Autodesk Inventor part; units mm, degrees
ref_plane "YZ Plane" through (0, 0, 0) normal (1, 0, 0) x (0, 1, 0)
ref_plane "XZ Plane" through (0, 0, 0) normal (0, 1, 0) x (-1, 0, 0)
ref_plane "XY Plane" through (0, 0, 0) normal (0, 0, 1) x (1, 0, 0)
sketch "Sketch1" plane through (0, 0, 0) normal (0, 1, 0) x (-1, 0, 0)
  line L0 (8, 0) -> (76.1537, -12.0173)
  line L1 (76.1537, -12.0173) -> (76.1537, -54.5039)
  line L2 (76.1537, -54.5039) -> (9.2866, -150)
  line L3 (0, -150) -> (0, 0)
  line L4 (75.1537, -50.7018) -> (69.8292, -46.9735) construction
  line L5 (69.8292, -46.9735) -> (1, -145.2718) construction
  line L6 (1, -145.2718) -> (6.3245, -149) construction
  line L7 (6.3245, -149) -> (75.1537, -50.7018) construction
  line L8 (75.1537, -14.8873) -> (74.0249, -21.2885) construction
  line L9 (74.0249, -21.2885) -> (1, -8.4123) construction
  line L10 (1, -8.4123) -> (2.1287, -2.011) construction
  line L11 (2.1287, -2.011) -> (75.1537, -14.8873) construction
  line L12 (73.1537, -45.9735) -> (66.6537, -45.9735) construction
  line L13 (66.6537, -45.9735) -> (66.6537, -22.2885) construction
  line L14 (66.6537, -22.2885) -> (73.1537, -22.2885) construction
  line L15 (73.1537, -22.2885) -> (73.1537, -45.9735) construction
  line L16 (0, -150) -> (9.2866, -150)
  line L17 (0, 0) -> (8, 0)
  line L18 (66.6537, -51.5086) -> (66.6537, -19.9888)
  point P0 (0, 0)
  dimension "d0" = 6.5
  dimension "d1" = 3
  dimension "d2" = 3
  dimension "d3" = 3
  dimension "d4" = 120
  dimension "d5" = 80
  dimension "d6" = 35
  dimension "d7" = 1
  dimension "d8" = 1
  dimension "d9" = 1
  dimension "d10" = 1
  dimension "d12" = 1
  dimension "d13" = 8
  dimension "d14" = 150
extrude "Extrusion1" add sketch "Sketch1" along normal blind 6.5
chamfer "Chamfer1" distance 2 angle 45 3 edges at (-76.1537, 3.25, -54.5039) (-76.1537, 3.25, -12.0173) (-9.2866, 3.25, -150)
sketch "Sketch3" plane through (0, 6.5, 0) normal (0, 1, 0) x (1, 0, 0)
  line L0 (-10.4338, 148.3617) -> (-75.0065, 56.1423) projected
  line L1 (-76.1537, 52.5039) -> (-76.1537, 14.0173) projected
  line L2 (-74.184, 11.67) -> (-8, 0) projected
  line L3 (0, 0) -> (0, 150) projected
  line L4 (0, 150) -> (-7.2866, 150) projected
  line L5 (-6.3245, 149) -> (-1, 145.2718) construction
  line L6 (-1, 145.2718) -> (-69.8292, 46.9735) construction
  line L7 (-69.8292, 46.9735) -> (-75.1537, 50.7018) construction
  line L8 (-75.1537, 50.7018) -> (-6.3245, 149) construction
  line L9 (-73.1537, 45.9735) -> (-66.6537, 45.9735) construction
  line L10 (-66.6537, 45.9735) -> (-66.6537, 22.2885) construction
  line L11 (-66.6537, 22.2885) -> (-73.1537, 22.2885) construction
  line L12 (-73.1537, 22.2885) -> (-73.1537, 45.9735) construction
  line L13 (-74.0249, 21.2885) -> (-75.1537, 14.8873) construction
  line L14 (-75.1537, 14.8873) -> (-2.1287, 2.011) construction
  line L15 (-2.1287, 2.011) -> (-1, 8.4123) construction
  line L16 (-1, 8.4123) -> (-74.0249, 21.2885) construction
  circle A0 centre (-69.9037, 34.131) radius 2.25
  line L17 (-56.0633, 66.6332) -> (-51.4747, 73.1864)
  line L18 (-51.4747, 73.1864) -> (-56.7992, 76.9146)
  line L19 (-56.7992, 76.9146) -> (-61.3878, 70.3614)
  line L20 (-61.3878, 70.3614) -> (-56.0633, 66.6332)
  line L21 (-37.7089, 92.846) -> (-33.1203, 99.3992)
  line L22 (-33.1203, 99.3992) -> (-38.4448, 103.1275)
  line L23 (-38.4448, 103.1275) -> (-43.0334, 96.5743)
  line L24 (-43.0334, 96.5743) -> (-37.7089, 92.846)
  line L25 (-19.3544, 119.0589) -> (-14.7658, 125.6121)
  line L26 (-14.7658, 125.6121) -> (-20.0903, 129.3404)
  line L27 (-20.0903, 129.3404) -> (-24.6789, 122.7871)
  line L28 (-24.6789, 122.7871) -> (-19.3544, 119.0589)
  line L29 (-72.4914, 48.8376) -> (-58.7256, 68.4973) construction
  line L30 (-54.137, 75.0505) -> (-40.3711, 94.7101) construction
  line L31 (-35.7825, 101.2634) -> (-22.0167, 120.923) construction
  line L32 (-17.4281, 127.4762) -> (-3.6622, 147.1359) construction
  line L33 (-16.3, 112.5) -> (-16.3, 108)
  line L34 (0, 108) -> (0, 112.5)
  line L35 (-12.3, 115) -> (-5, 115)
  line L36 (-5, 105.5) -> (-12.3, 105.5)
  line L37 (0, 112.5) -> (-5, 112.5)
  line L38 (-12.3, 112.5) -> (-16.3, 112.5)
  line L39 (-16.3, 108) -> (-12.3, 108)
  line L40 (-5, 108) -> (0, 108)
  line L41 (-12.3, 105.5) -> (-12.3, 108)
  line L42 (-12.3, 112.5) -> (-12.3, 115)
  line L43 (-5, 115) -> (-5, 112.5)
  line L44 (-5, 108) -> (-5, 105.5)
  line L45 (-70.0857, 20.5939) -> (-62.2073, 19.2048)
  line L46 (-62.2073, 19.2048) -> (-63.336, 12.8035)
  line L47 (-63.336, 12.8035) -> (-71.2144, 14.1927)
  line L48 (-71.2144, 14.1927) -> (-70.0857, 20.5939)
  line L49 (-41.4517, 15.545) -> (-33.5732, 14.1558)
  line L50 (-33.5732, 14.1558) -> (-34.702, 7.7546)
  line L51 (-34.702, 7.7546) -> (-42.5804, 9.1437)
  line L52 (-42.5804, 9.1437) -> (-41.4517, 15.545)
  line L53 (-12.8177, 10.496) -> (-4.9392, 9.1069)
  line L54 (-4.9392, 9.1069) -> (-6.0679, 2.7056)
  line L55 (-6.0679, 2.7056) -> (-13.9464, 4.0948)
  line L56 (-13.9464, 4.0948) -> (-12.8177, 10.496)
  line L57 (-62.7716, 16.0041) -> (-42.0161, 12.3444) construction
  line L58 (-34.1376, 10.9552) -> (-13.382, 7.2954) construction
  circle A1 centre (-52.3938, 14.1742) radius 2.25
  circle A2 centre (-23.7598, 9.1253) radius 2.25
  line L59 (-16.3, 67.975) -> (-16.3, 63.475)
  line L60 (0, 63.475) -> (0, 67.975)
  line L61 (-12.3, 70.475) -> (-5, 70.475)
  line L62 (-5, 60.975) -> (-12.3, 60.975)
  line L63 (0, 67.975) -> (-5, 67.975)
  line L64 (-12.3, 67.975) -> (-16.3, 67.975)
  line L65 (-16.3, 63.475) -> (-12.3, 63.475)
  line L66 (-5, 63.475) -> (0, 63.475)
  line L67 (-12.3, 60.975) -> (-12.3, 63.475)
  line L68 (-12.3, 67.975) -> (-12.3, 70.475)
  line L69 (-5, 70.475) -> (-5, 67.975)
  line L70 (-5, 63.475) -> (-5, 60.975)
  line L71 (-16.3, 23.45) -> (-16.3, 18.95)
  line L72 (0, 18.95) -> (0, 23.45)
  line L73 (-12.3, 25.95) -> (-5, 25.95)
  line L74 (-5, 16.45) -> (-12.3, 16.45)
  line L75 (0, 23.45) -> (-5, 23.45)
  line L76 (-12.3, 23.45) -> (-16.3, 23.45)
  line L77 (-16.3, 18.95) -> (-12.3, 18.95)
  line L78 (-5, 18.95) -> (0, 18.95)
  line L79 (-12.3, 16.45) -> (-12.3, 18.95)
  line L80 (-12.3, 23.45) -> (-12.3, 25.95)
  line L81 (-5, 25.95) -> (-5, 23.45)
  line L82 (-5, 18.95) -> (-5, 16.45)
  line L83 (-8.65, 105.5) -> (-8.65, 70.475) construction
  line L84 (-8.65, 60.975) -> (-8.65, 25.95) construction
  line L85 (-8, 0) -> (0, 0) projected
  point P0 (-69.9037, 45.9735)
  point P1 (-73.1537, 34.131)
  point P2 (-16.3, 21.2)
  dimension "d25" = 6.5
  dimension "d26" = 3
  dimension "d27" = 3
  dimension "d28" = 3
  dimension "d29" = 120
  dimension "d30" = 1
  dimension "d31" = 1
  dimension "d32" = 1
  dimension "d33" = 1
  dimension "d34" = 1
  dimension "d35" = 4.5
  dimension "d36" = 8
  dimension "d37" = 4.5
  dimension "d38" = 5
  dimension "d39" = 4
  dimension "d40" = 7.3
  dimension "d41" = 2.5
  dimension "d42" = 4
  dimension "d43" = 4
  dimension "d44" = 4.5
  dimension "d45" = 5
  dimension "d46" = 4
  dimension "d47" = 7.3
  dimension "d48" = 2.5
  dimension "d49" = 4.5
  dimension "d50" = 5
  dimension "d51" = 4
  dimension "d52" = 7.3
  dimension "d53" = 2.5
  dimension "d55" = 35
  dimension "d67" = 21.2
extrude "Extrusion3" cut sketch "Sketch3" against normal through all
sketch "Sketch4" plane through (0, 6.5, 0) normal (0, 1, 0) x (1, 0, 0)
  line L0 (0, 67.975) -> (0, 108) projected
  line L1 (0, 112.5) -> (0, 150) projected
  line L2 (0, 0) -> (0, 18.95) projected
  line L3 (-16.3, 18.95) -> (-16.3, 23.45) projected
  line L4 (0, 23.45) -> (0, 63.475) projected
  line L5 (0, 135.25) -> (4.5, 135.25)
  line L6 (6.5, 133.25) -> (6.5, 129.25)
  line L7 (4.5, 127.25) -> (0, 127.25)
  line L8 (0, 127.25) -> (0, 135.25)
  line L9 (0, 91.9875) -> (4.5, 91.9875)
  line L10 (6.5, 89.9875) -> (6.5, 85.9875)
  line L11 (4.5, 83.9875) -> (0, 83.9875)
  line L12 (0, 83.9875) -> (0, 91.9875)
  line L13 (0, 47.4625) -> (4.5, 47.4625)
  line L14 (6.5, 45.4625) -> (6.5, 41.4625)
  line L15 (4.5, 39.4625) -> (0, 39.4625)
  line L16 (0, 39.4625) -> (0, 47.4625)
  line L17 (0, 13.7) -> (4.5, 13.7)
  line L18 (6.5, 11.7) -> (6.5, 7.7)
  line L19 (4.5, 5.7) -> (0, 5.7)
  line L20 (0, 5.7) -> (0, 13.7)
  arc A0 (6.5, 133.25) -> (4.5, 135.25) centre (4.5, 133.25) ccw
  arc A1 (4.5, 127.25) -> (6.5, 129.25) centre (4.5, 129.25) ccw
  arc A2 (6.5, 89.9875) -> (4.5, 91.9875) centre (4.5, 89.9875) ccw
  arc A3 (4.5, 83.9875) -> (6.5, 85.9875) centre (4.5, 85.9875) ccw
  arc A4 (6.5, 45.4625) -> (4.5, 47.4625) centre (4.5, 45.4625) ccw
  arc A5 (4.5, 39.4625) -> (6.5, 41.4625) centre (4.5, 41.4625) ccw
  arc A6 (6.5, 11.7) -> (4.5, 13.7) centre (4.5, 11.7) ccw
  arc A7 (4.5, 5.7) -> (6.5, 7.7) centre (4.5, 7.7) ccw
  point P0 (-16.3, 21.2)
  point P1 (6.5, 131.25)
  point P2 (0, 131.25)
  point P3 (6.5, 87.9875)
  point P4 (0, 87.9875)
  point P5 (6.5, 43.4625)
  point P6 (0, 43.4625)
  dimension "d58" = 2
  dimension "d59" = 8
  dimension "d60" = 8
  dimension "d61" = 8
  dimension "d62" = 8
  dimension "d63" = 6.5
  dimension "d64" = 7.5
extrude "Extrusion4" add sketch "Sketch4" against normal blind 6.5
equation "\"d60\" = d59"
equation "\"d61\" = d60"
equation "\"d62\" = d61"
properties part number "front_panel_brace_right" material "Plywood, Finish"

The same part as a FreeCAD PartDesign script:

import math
import FreeCAD as App
import Part
import Sketcher
from FreeCAD import Vector
Q = App.Units.Quantity


def edges_at(feature, points):
    """Names of the edges that pass closest to the given points."""
    edges = feature.Shape.Edges
    near = lambda p: min(range(len(edges)), key=lambda i: edges[i].distToShape(Part.Vertex(*p))[0])
    return sorted({f"Edge{near(p) + 1}" for p in points})

doc = App.newDocument("Part")
body = doc.addObject("PartDesign::Body", "Body")

# Sketch on XZ plane
sketch1 = doc.addObject("Sketcher::SketchObject", "Sketch")
body.addObject(sketch1)
sketch1.AttachmentSupport = (doc.XZ_Plane, [""])
sketch1.MapMode = "FlatFace"
sketch1.addGeometry([
    Part.LineSegment(Vector(-76.1537, -12.0173, 0), Vector(-8, 0, 0)),  # 0
    Part.LineSegment(Vector(-8, 0, 0), Vector(0, 0, 0)),  # 1
    Part.LineSegment(Vector(0, 0, 0), Vector(0, -150, 0)),  # 2
    Part.LineSegment(Vector(0, -150, 0), Vector(-9.2866, -150, 0)),  # 3
    Part.LineSegment(Vector(-9.2866, -150, 0), Vector(-76.1537, -54.5039, 0)),  # 4
    Part.LineSegment(Vector(-76.1537, -54.5039, 0), Vector(-76.1537, -12.0173, 0)),  # 5
], False)
sketch1.addConstraint([
    Sketcher.Constraint("Coincident", 0, 2, 1, 1),
    Sketcher.Constraint("Coincident", 1, 2, 2, 1),
    Sketcher.Constraint("Coincident", 2, 2, 3, 1),
    Sketcher.Constraint("Coincident", 3, 2, 4, 1),
    Sketcher.Constraint("Coincident", 4, 2, 5, 1),
    Sketcher.Constraint("Coincident", 5, 2, 0, 1),
    Sketcher.Constraint("Horizontal", 1),
    Sketcher.Constraint("Vertical", 2),
    Sketcher.Constraint("Horizontal", 3),
    Sketcher.Constraint("Vertical", 5),
    Sketcher.Constraint("Coincident", 1, 2, -1, 1),
    Sketcher.Constraint("DistanceX", 1, 1, 1, 2, 8.0),
    Sketcher.Constraint("DistanceY", 2, 2, 2, 1, 150.0),
    Sketcher.Constraint("Angle", 0, Q("10 deg")),
    Sketcher.Constraint("Angle", 4, Q("125 deg")),
    Sketcher.Constraint("Distance", 0, 69.205),
    Sketcher.Constraint("DistanceX", 3, 2, 3, 1, 9.2866),
])
pad1 = doc.addObject("PartDesign::Pad", "Pad")
body.addObject(pad1)
pad1.Profile = sketch1
pad1.Length = 6.5
pad1.Reversed = True
doc.recompute()

chamfer = doc.addObject("PartDesign::Chamfer", "Chamfer")
body.addObject(chamfer)
chamfer.Base = (pad1, edges_at(pad1, [(-76.154, 3.25, -54.504), (-76.154, 3.25, -12.017), (-9.287, 3.25, -150)]))
chamfer.Size = 2

# Sketch on XZ plane
sketch2 = doc.addObject("Sketcher::SketchObject", "Sketch001")
body.addObject(sketch2)
sketch2.AttachmentSupport = (doc.XZ_Plane, [""])
sketch2.MapMode = "FlatFace"
sketch2.AttachmentOffset = App.Placement(Vector(0, 0, -6.5), App.Rotation())
sketch2.addGeometry([
    Part.LineSegment(Vector(-5, -18.95, 0), Vector(0, -18.95, 0)),  # 0
    Part.LineSegment(Vector(0, -18.95, 0), Vector(0, -23.45, 0)),  # 1
    Part.LineSegment(Vector(0, -23.45, 0), Vector(-5, -23.45, 0)),  # 2
    Part.LineSegment(Vector(-5, -23.45, 0), Vector(-5, -25.95, 0)),  # 3
    Part.LineSegment(Vector(-5, -25.95, 0), Vector(-12.3, -25.95, 0)),  # 4
    Part.LineSegment(Vector(-12.3, -25.95, 0), Vector(-12.3, -23.45, 0)),  # 5
    Part.LineSegment(Vector(-12.3, -23.45, 0), Vector(-16.3, -23.45, 0)),  # 6
    Part.LineSegment(Vector(-16.3, -23.45, 0), Vector(-16.3, -18.95, 0)),  # 7
    Part.LineSegment(Vector(-16.3, -18.95, 0), Vector(-12.3, -18.95, 0)),  # 8
    Part.LineSegment(Vector(-12.3, -18.95, 0), Vector(-12.3, -16.45, 0)),  # 9
    Part.LineSegment(Vector(-12.3, -16.45, 0), Vector(-5, -16.45, 0)),  # 10
    Part.LineSegment(Vector(-5, -16.45, 0), Vector(-5, -18.95, 0)),  # 11
    Part.LineSegment(Vector(-5, -108, 0), Vector(0, -108, 0)),  # 12
    Part.LineSegment(Vector(0, -108, 0), Vector(0, -112.5, 0)),  # 13
    Part.LineSegment(Vector(0, -112.5, 0), Vector(-5, -112.5, 0)),  # 14
    Part.LineSegment(Vector(-5, -112.5, 0), Vector(-5, -115, 0)),  # 15
    Part.LineSegment(Vector(-5, -115, 0), Vector(-12.3, -115, 0)),  # 16
    Part.LineSegment(Vector(-12.3, -115, 0), Vector(-12.3, -112.5, 0)),  # 17
    Part.LineSegment(Vector(-12.3, -112.5, 0), Vector(-16.3, -112.5, 0)),  # 18
    Part.LineSegment(Vector(-16.3, -112.5, 0), Vector(-16.3, -108, 0)),  # 19
    Part.LineSegment(Vector(-16.3, -108, 0), Vector(-12.3, -108, 0)),  # 20
    Part.LineSegment(Vector(-12.3, -108, 0), Vector(-12.3, -105.5, 0)),  # 21
    Part.LineSegment(Vector(-12.3, -105.5, 0), Vector(-5, -105.5, 0)),  # 22
    Part.LineSegment(Vector(-5, -105.5, 0), Vector(-5, -108, 0)),  # 23
    Part.LineSegment(Vector(-5, -63.475, 0), Vector(0, -63.475, 0)),  # 24
    Part.LineSegment(Vector(0, -63.475, 0), Vector(0, -67.975, 0)),  # 25
    Part.LineSegment(Vector(0, -67.975, 0), Vector(-5, -67.975, 0)),  # 26
    Part.LineSegment(Vector(-5, -67.975, 0), Vector(-5, -70.475, 0)),  # 27
    Part.LineSegment(Vector(-5, -70.475, 0), Vector(-12.3, -70.475, 0)),  # 28
    Part.LineSegment(Vector(-12.3, -70.475, 0), Vector(-12.3, -67.975, 0)),  # 29
    Part.LineSegment(Vector(-12.3, -67.975, 0), Vector(-16.3, -67.975, 0)),  # 30
    Part.LineSegment(Vector(-16.3, -67.975, 0), Vector(-16.3, -63.475, 0)),  # 31
    Part.LineSegment(Vector(-16.3, -63.475, 0), Vector(-12.3, -63.475, 0)),  # 32
    Part.LineSegment(Vector(-12.3, -63.475, 0), Vector(-12.3, -60.975, 0)),  # 33
    Part.LineSegment(Vector(-12.3, -60.975, 0), Vector(-5, -60.975, 0)),  # 34
    Part.LineSegment(Vector(-5, -60.975, 0), Vector(-5, -63.475, 0)),  # 35
    Part.Circle(Vector(-69.9037, -34.131, 0), Vector(0, 0, 1), 2.25),  # 36
    Part.LineSegment(Vector(-61.3878, -70.3614, 0), Vector(-56.0633, -66.6332, 0)),  # 37
    Part.LineSegment(Vector(-56.0633, -66.6332, 0), Vector(-51.4747, -73.1864, 0)),  # 38
    Part.LineSegment(Vector(-51.4747, -73.1864, 0), Vector(-56.7992, -76.9146, 0)),  # 39
    Part.LineSegment(Vector(-56.7992, -76.9146, 0), Vector(-61.3878, -70.3614, 0)),  # 40
    Part.LineSegment(Vector(-43.0334, -96.5743, 0), Vector(-37.7089, -92.846, 0)),  # 41
    Part.LineSegment(Vector(-37.7089, -92.846, 0), Vector(-33.1203, -99.3992, 0)),  # 42
    Part.LineSegment(Vector(-33.1203, -99.3992, 0), Vector(-38.4448, -103.1275, 0)),  # 43
    Part.LineSegment(Vector(-38.4448, -103.1275, 0), Vector(-43.0334, -96.5743, 0)),  # 44
    Part.LineSegment(Vector(-24.6789, -122.7871, 0), Vector(-19.3544, -119.0589, 0)),  # 45
    Part.LineSegment(Vector(-19.3544, -119.0589, 0), Vector(-14.7658, -125.6121, 0)),  # 46
    Part.LineSegment(Vector(-14.7658, -125.6121, 0), Vector(-20.0903, -129.3404, 0)),  # 47
    Part.LineSegment(Vector(-20.0903, -129.3404, 0), Vector(-24.6789, -122.7871, 0)),  # 48
    Part.LineSegment(Vector(-62.2073, -19.2048, 0), Vector(-70.0857, -20.5939, 0)),  # 49
    Part.LineSegment(Vector(-70.0857, -20.5939, 0), Vector(-71.2144, -14.1927, 0)),  # 50
    Part.LineSegment(Vector(-71.2144, -14.1927, 0), Vector(-63.336, -12.8035, 0)),  # 51
    Part.LineSegment(Vector(-63.336, -12.8035, 0), Vector(-62.2073, -19.2048, 0)),  # 52
    Part.LineSegment(Vector(-33.5732, -14.1558, 0), Vector(-41.4517, -15.545, 0)),  # 53
    Part.LineSegment(Vector(-41.4517, -15.545, 0), Vector(-42.5804, -9.1437, 0)),  # 54
    Part.LineSegment(Vector(-42.5804, -9.1437, 0), Vector(-34.702, -7.7546, 0)),  # 55
    Part.LineSegment(Vector(-34.702, -7.7546, 0), Vector(-33.5732, -14.1558, 0)),  # 56
    Part.LineSegment(Vector(-4.9392, -9.1069, 0), Vector(-12.8177, -10.496, 0)),  # 57
    Part.LineSegment(Vector(-12.8177, -10.496, 0), Vector(-13.9464, -4.0948, 0)),  # 58
    Part.LineSegment(Vector(-13.9464, -4.0948, 0), Vector(-6.0679, -2.7056, 0)),  # 59
    Part.LineSegment(Vector(-6.0679, -2.7056, 0), Vector(-4.9392, -9.1069, 0)),  # 60
    Part.Circle(Vector(-52.3938, -14.1742, 0), Vector(0, 0, 1), 2.25),  # 61
    Part.Circle(Vector(-23.7598, -9.1253, 0), Vector(0, 0, 1), 2.25),  # 62
], False)
sketch2.addConstraint([
    Sketcher.Constraint("Coincident", 0, 2, 1, 1),
    Sketcher.Constraint("Coincident", 1, 2, 2, 1),
    Sketcher.Constraint("Coincident", 2, 2, 3, 1),
    Sketcher.Constraint("Coincident", 3, 2, 4, 1),
    Sketcher.Constraint("Coincident", 4, 2, 5, 1),
    Sketcher.Constraint("Coincident", 5, 2, 6, 1),
    Sketcher.Constraint("Coincident", 6, 2, 7, 1),
    Sketcher.Constraint("Coincident", 7, 2, 8, 1),
    Sketcher.Constraint("Coincident", 8, 2, 9, 1),
    Sketcher.Constraint("Coincident", 9, 2, 10, 1),
    Sketcher.Constraint("Coincident", 10, 2, 11, 1),
    Sketcher.Constraint("Coincident", 11, 2, 0, 1),
    Sketcher.Constraint("Coincident", 12, 2, 13, 1),
    Sketcher.Constraint("Coincident", 13, 2, 14, 1),
    Sketcher.Constraint("Coincident", 14, 2, 15, 1),
    Sketcher.Constraint("Coincident", 15, 2, 16, 1),
    Sketcher.Constraint("Coincident", 16, 2, 17, 1),
    Sketcher.Constraint("Coincident", 17, 2, 18, 1),
    Sketcher.Constraint("Coincident", 18, 2, 19, 1),
    Sketcher.Constraint("Coincident", 19, 2, 20, 1),
    Sketcher.Constraint("Coincident", 20, 2, 21, 1),
    Sketcher.Constraint("Coincident", 21, 2, 22, 1),
    Sketcher.Constraint("Coincident", 22, 2, 23, 1),
    Sketcher.Constraint("Coincident", 23, 2, 12, 1),
    Sketcher.Constraint("Coincident", 24, 2, 25, 1),
    Sketcher.Constraint("Coincident", 25, 2, 26, 1),
    Sketcher.Constraint("Coincident", 26, 2, 27, 1),
    Sketcher.Constraint("Coincident", 27, 2, 28, 1),
    Sketcher.Constraint("Coincident", 28, 2, 29, 1),
    Sketcher.Constraint("Coincident", 29, 2, 30, 1),
    Sketcher.Constraint("Coincident", 30, 2, 31, 1),
    Sketcher.Constraint("Coincident", 31, 2, 32, 1),
    Sketcher.Constraint("Coincident", 32, 2, 33, 1),
    Sketcher.Constraint("Coincident", 33, 2, 34, 1),
    Sketcher.Constraint("Coincident", 34, 2, 35, 1),
    Sketcher.Constraint("Coincident", 35, 2, 24, 1),
    Sketcher.Constraint("Coincident", 37, 2, 38, 1),
    Sketcher.Constraint("Coincident", 38, 2, 39, 1),
    Sketcher.Constraint("Coincident", 39, 2, 40, 1),
    Sketcher.Constraint("Coincident", 40, 2, 37, 1),
    Sketcher.Constraint("Coincident", 41, 2, 42, 1),
    Sketcher.Constraint("Coincident", 42, 2, 43, 1),
    Sketcher.Constraint("Coincident", 43, 2, 44, 1),
    Sketcher.Constraint("Coincident", 44, 2, 41, 1),
    Sketcher.Constraint("Coincident", 45, 2, 46, 1),
    Sketcher.Constraint("Coincident", 46, 2, 47, 1),
    Sketcher.Constraint("Coincident", 47, 2, 48, 1),
    Sketcher.Constraint("Coincident", 48, 2, 45, 1),
    Sketcher.Constraint("Coincident", 49, 2, 50, 1),
    Sketcher.Constraint("Coincident", 50, 2, 51, 1),
    Sketcher.Constraint("Coincident", 51, 2, 52, 1),
    Sketcher.Constraint("Coincident", 52, 2, 49, 1),
    Sketcher.Constraint("Coincident", 53, 2, 54, 1),
    Sketcher.Constraint("Coincident", 54, 2, 55, 1),
    Sketcher.Constraint("Coincident", 55, 2, 56, 1),
    Sketcher.Constraint("Coincident", 56, 2, 53, 1),
    Sketcher.Constraint("Coincident", 57, 2, 58, 1),
    Sketcher.Constraint("Coincident", 58, 2, 59, 1),
    Sketcher.Constraint("Coincident", 59, 2, 60, 1),
    Sketcher.Constraint("Coincident", 60, 2, 57, 1),
    Sketcher.Constraint("Horizontal", 0),
    Sketcher.Constraint("Vertical", 1),
    Sketcher.Constraint("Horizontal", 2),
    Sketcher.Constraint("Vertical", 3),
    Sketcher.Constraint("Horizontal", 4),
    Sketcher.Constraint("Vertical", 5),
    Sketcher.Constraint("Horizontal", 6),
    Sketcher.Constraint("Vertical", 7),
    Sketcher.Constraint("Horizontal", 8),
    Sketcher.Constraint("Vertical", 9),
    Sketcher.Constraint("Horizontal", 10),
    Sketcher.Constraint("Vertical", 11),
    Sketcher.Constraint("Horizontal", 12),
    Sketcher.Constraint("Vertical", 13),
    Sketcher.Constraint("Horizontal", 14),
    Sketcher.Constraint("Vertical", 15),
    Sketcher.Constraint("Horizontal", 16),
    Sketcher.Constraint("Vertical", 17),
    Sketcher.Constraint("Horizontal", 18),
    Sketcher.Constraint("Vertical", 19),
    Sketcher.Constraint("Horizontal", 20),
    Sketcher.Constraint("Vertical", 21),
    Sketcher.Constraint("Horizontal", 22),
    Sketcher.Constraint("Vertical", 23),
    Sketcher.Constraint("Horizontal", 24),
    Sketcher.Constraint("Vertical", 25),
    Sketcher.Constraint("Horizontal", 26),
    Sketcher.Constraint("Vertical", 27),
    Sketcher.Constraint("Horizontal", 28),
    Sketcher.Constraint("Vertical", 29),
    Sketcher.Constraint("Horizontal", 30),
    Sketcher.Constraint("Vertical", 31),
    Sketcher.Constraint("Horizontal", 32),
    Sketcher.Constraint("Vertical", 33),
    Sketcher.Constraint("Horizontal", 34),
    Sketcher.Constraint("Vertical", 35),
    Sketcher.Constraint("Equal", 36, 61),
    Sketcher.Constraint("Equal", 61, 62),
    Sketcher.Constraint("PointOnObject", 0, 2, -2),
    Sketcher.Constraint("PointOnObject", 12, 2, -2),
    Sketcher.Constraint("PointOnObject", 24, 2, -2),
    Sketcher.Constraint("Perpendicular", 37, 38),
    Sketcher.Constraint("Perpendicular", 38, 39),
    Sketcher.Constraint("Perpendicular", 39, 40),
    Sketcher.Constraint("Perpendicular", 40, 41),
    Sketcher.Constraint("Perpendicular", 41, 42),
    Sketcher.Constraint("Perpendicular", 42, 43),
    Sketcher.Constraint("Perpendicular", 43, 44),
    Sketcher.Constraint("Perpendicular", 44, 45),
    Sketcher.Constraint("Perpendicular", 45, 46),
    Sketcher.Constraint("Perpendicular", 46, 47),
    Sketcher.Constraint("Perpendicular", 47, 48),
    Sketcher.Constraint("Perpendicular", 49, 50),
    Sketcher.Constraint("Perpendicular", 50, 51),
    Sketcher.Constraint("Perpendicular", 51, 52),
    Sketcher.Constraint("Perpendicular", 52, 53),
    Sketcher.Constraint("Perpendicular", 53, 54),
    Sketcher.Constraint("Perpendicular", 54, 55),
    Sketcher.Constraint("Perpendicular", 55, 56),
    Sketcher.Constraint("Perpendicular", 56, 57),
    Sketcher.Constraint("Perpendicular", 57, 58),
    Sketcher.Constraint("Perpendicular", 58, 59),
    Sketcher.Constraint("Perpendicular", 59, 60),
    Sketcher.Constraint("Horizontal", 2, 2, 5, 2),
    Sketcher.Constraint("Horizontal", 0, 2, 7, 2),
    Sketcher.Constraint("Horizontal", 14, 2, 17, 2),
    Sketcher.Constraint("Horizontal", 12, 2, 19, 2),
    Sketcher.Constraint("Horizontal", 26, 2, 29, 2),
    Sketcher.Constraint("Horizontal", 24, 2, 31, 2),
    Sketcher.Constraint("Vertical", 5, 2, 8, 2),
    Sketcher.Constraint("Vertical", 3, 2, 10, 2),
    Sketcher.Constraint("Vertical", 11, 2, 14, 2),
    Sketcher.Constraint("Vertical", 9, 2, 16, 2),
    Sketcher.Constraint("Vertical", 7, 2, 18, 2),
    Sketcher.Constraint("Vertical", 17, 2, 20, 2),
    Sketcher.Constraint("Vertical", 15, 2, 22, 2),
    Sketcher.Constraint("Vertical", 23, 2, 26, 2),
    Sketcher.Constraint("Vertical", 21, 2, 28, 2),
    Sketcher.Constraint("Vertical", 19, 2, 30, 2),
    Sketcher.Constraint("Vertical", 29, 2, 32, 2),
    Sketcher.Constraint("Vertical", 27, 2, 34, 2),
    Sketcher.Constraint("Equal", 5, 9),
    Sketcher.Constraint("Equal", 7, 13),
    Sketcher.Constraint("Equal", 11, 15),
    Sketcher.Constraint("Equal", 17, 21),
    Sketcher.Constraint("Equal", 19, 25),
    Sketcher.Constraint("Equal", 23, 27),
    Sketcher.Constraint("Equal", 29, 33),
    Sketcher.Constraint("Equal", 39, 41),
    Sketcher.Constraint("Equal", 40, 42),
    Sketcher.Constraint("Equal", 43, 45),
    Sketcher.Constraint("Equal", 44, 46),
    Sketcher.Constraint("Equal", 48, 49),
    Sketcher.Constraint("Equal", 47, 50),
    Sketcher.Constraint("Equal", 51, 53),
    Sketcher.Constraint("Equal", 52, 54),
    Sketcher.Constraint("Equal", 55, 57),
    Sketcher.Constraint("Equal", 56, 58),
    Sketcher.Constraint("Diameter", 36, 4.5),
    Sketcher.Constraint("DistanceX", 0, 1, 0, 2, 5.0),
    Sketcher.Constraint("DistanceX", 6, 2, 6, 1, 4.0),
    Sketcher.Constraint("Angle", 37, Q("34.9996 deg")),
    Sketcher.Constraint("Distance", 38, 8.0),
    Sketcher.Constraint("DistanceX", 4, 2, 4, 1, 7.3),
    Sketcher.Constraint("DistanceY", 1, 2, 1, 1, 4.5),
    Sketcher.Constraint("DistanceY", 3, 2, 3, 1, 2.5),
    Sketcher.Constraint("Distance", 37, 6.5),
    Sketcher.Constraint("Angle", 49, Q("-170.0005 deg")),
    Sketcher.Constraint("DistanceY", 12, 2, -1, 1, 108.0),
    Sketcher.Constraint("DistanceY", 0, 2, -1, 1, 18.95),
    Sketcher.Constraint("DistanceY", 36, 3, -1, 1, 34.131),
    Sketcher.Constraint("DistanceY", 24, 2, -1, 1, 63.475),
    Sketcher.Constraint("DistanceX", 41, 2, -1, 1, 37.709),
    Sketcher.Constraint("DistanceY", 41, 2, -1, 1, 92.846),
    Sketcher.Constraint("DistanceY", 45, 2, -1, 1, 119.059),
    Sketcher.Constraint("DistanceX", 48, 2, -1, 1, 24.679),
    Sketcher.Constraint("DistanceY", 49, 2, -1, 1, 20.594),
    Sketcher.Constraint("DistanceX", 51, 2, -1, 1, 63.336),
    Sketcher.Constraint("DistanceY", 53, 2, -1, 1, 15.545),
    Sketcher.Constraint("DistanceX", 55, 2, -1, 1, 34.702),
    Sketcher.Constraint("DistanceY", 57, 2, -1, 1, 10.496),
    Sketcher.Constraint("DistanceX", 59, 2, -1, 1, 6.068),
    Sketcher.Constraint("DistanceX", 36, 3, -1, 1, 69.9037),
    Sketcher.Constraint("DistanceX", 61, 3, -1, 1, 52.3938),
    Sketcher.Constraint("DistanceY", 61, 3, -1, 1, 14.1742),
    Sketcher.Constraint("DistanceX", 62, 3, -1, 1, 23.7598),
    Sketcher.Constraint("DistanceY", 62, 3, -1, 1, 9.1253),
    Sketcher.Constraint("DistanceX", 37, 2, -1, 1, 56.0633),
    Sketcher.Constraint("DistanceY", 37, 2, -1, 1, 66.6332),
])
pocket1 = doc.addObject("PartDesign::Pocket", "Pocket")
body.addObject(pocket1)
pocket1.Profile = sketch2
pocket1.Type = "ThroughAll"
pocket1.Reversed = True

# Sketch on XZ plane
sketch3 = doc.addObject("Sketcher::SketchObject", "Sketch002")
body.addObject(sketch3)
sketch3.AttachmentSupport = (doc.XZ_Plane, [""])
sketch3.MapMode = "FlatFace"
sketch3.AttachmentOffset = App.Placement(Vector(0, 0, -6.5), App.Rotation())
sketch3.addGeometry([
    Part.LineSegment(Vector(0, -91.9875, 0), Vector(0, -83.9875, 0)),  # 0
    Part.LineSegment(Vector(0, -83.9875, 0), Vector(4.5, -83.9875, 0)),  # 1
    Part.ArcOfCircle(Part.Circle(Vector(4.5, -85.9875, 0), Vector(0, 0, 1), 2), math.radians(0), math.radians(90)),  # 2
    Part.LineSegment(Vector(6.5, -85.9875, 0), Vector(6.5, -89.9875, 0)),  # 3
    Part.ArcOfCircle(Part.Circle(Vector(4.5, -89.9875, 0), Vector(0, 0, 1), 2), math.radians(-90), math.radians(0)),  # 4
    Part.LineSegment(Vector(4.5, -91.9875, 0), Vector(0, -91.9875, 0)),  # 5
    Part.LineSegment(Vector(0, -135.25, 0), Vector(0, -127.25, 0)),  # 6
    Part.LineSegment(Vector(0, -127.25, 0), Vector(4.5, -127.25, 0)),  # 7
    Part.ArcOfCircle(Part.Circle(Vector(4.5, -129.25, 0), Vector(0, 0, 1), 2), math.radians(0), math.radians(90)),  # 8
    Part.LineSegment(Vector(6.5, -129.25, 0), Vector(6.5, -133.25, 0)),  # 9
    Part.ArcOfCircle(Part.Circle(Vector(4.5, -133.25, 0), Vector(0, 0, 1), 2), math.radians(-90), math.radians(0)),  # 10
    Part.LineSegment(Vector(4.5, -135.25, 0), Vector(0, -135.25, 0)),  # 11
    Part.LineSegment(Vector(0, -13.7, 0), Vector(0, -5.7, 0)),  # 12
    Part.LineSegment(Vector(0, -5.7, 0), Vector(4.5, -5.7, 0)),  # 13
    Part.ArcOfCircle(Part.Circle(Vector(4.5, -7.7, 0), Vector(0, 0, 1), 2), math.radians(0), math.radians(90)),  # 14
    Part.LineSegment(Vector(6.5, -7.7, 0), Vector(6.5, -11.7, 0)),  # 15
    Part.ArcOfCircle(Part.Circle(Vector(4.5, -11.7, 0), Vector(0, 0, 1), 2), math.radians(-90), math.radians(0)),  # 16
    Part.LineSegment(Vector(4.5, -13.7, 0), Vector(0, -13.7, 0)),  # 17
    Part.LineSegment(Vector(0, -47.4625, 0), Vector(0, -39.4625, 0)),  # 18
    Part.LineSegment(Vector(0, -39.4625, 0), Vector(4.5, -39.4625, 0)),  # 19
    Part.ArcOfCircle(Part.Circle(Vector(4.5, -41.4625, 0), Vector(0, 0, 1), 2), math.radians(0), math.radians(90)),  # 20
    Part.LineSegment(Vector(6.5, -41.4625, 0), Vector(6.5, -45.4625, 0)),  # 21
    Part.ArcOfCircle(Part.Circle(Vector(4.5, -45.4625, 0), Vector(0, 0, 1), 2), math.radians(-90), math.radians(0)),  # 22
    Part.LineSegment(Vector(4.5, -47.4625, 0), Vector(0, -47.4625, 0)),  # 23
], False)
sketch3.addConstraint([
    Sketcher.Constraint("Coincident", 0, 2, 1, 1),
    Sketcher.Constraint("Tangent", 1, 2, 2, 2),
    Sketcher.Constraint("Tangent", 2, 1, 3, 1),
    Sketcher.Constraint("Tangent", 3, 2, 4, 2),
    Sketcher.Constraint("Tangent", 4, 1, 5, 1),
    Sketcher.Constraint("Coincident", 5, 2, 0, 1),
    Sketcher.Constraint("Coincident", 6, 2, 7, 1),
    Sketcher.Constraint("Tangent", 7, 2, 8, 2),
    Sketcher.Constraint("Tangent", 8, 1, 9, 1),
    Sketcher.Constraint("Tangent", 9, 2, 10, 2),
    Sketcher.Constraint("Tangent", 10, 1, 11, 1),
    Sketcher.Constraint("Coincident", 11, 2, 6, 1),
    Sketcher.Constraint("Coincident", 12, 2, 13, 1),
    Sketcher.Constraint("Tangent", 13, 2, 14, 2),
    Sketcher.Constraint("Tangent", 14, 1, 15, 1),
    Sketcher.Constraint("Tangent", 15, 2, 16, 2),
    Sketcher.Constraint("Tangent", 16, 1, 17, 1),
    Sketcher.Constraint("Coincident", 17, 2, 12, 1),
    Sketcher.Constraint("Coincident", 18, 2, 19, 1),
    Sketcher.Constraint("Tangent", 19, 2, 20, 2),
    Sketcher.Constraint("Tangent", 20, 1, 21, 1),
    Sketcher.Constraint("Tangent", 21, 2, 22, 2),
    Sketcher.Constraint("Tangent", 22, 1, 23, 1),
    Sketcher.Constraint("Coincident", 23, 2, 18, 1),
    Sketcher.Constraint("Vertical", 0),
    Sketcher.Constraint("Horizontal", 1),
    Sketcher.Constraint("Vertical", 3),
    Sketcher.Constraint("Horizontal", 5),
    Sketcher.Constraint("Vertical", 6),
    Sketcher.Constraint("Horizontal", 7),
    Sketcher.Constraint("Vertical", 9),
    Sketcher.Constraint("Horizontal", 11),
    Sketcher.Constraint("Vertical", 12),
    Sketcher.Constraint("Horizontal", 13),
    Sketcher.Constraint("Vertical", 15),
    Sketcher.Constraint("Horizontal", 17),
    Sketcher.Constraint("Vertical", 18),
    Sketcher.Constraint("Horizontal", 19),
    Sketcher.Constraint("Vertical", 21),
    Sketcher.Constraint("Horizontal", 23),
    Sketcher.Constraint("Equal", 2, 4),
    Sketcher.Constraint("Equal", 4, 8),
    Sketcher.Constraint("Equal", 8, 10),
    Sketcher.Constraint("Equal", 10, 14),
    Sketcher.Constraint("Equal", 14, 16),
    Sketcher.Constraint("Equal", 16, 20),
    Sketcher.Constraint("Equal", 20, 22),
    Sketcher.Constraint("PointOnObject", 0, 2, -2),
    Sketcher.Constraint("PointOnObject", 6, 2, -2),
    Sketcher.Constraint("PointOnObject", 12, 2, -2),
    Sketcher.Constraint("PointOnObject", 18, 2, -2),
    Sketcher.Constraint("Vertical", 4, 3, 8, 3),
    Sketcher.Constraint("Vertical", 10, 3, 14, 3),
    Sketcher.Constraint("Vertical", 16, 3, 20, 3),
    Sketcher.Constraint("Equal", 0, 6),
    Sketcher.Constraint("Equal", 6, 12),
    Sketcher.Constraint("Equal", 12, 18),
    Sketcher.Constraint("Radius", 2, 2.0),
    Sketcher.Constraint("DistanceY", 0, 1, 0, 2, 8.0),
    Sketcher.Constraint("DistanceX", -1, 1, 2, 1, 6.5),
    Sketcher.Constraint("DistanceY", 14, 3, -1, 1, 7.7),
    Sketcher.Constraint("DistanceY", 8, 3, -1, 1, 129.25),
    Sketcher.Constraint("DistanceY", 2, 3, 20, 3, 44.525),
    Sketcher.Constraint("DistanceY", 2, 3, -1, 1, 85.9875),
])
pad2 = doc.addObject("PartDesign::Pad", "Pad001")
body.addObject(pad2)
pad2.Profile = sketch3
pad2.Length = 6.5

doc.recompute()
